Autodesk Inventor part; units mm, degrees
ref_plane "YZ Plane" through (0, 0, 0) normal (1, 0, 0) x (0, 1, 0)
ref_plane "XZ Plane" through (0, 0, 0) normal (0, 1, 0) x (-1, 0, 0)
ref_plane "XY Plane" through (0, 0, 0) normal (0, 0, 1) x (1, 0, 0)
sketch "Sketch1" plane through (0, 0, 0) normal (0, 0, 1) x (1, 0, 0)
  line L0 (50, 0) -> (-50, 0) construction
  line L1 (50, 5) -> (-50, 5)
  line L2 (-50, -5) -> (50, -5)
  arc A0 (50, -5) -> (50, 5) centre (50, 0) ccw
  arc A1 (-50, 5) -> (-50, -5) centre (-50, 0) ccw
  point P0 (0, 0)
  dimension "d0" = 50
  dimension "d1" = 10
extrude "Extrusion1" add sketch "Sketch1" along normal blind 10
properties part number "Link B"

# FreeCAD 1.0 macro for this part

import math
import FreeCAD as App
import Part
import Sketcher

V = App.Vector
Q = App.Units.Quantity

doc = App.newDocument("Part")
body = doc.addObject("PartDesign::Body", "Body")

# Sketch on XY plane
sketch1 = doc.addObject("Sketcher::SketchObject", "Sketch")
body.addObject(sketch1)
sketch1.AttachmentSupport = (doc.XY_Plane, [""])
sketch1.MapMode = "FlatFace"
sketch1.addGeometry(Part.ArcOfCircle(Part.Circle(V(50, 0, 0), V(0, 0, 1), 5), math.radians(-90), math.radians(90)), False)
sketch1.addGeometry(Part.LineSegment(V(50, 5, 0), V(-50, 5, 0)), False)
sketch1.addGeometry(Part.ArcOfCircle(Part.Circle(V(-50, 0, 0), V(0, 0, 1), 5), math.radians(90), math.radians(270)), False)
sketch1.addGeometry(Part.LineSegment(V(-50, -5, 0), V(50, -5, 0)), False)
sketch1.addConstraint(Sketcher.Constraint("Tangent", 0, 2, 1, 1))
sketch1.addConstraint(Sketcher.Constraint("Tangent", 1, 2, 2, 1))
sketch1.addConstraint(Sketcher.Constraint("Tangent", 2, 2, 3, 1))
sketch1.addConstraint(Sketcher.Constraint("Tangent", 3, 2, 0, 1))
sketch1.addConstraint(Sketcher.Constraint("Horizontal", 1))
sketch1.addConstraint(Sketcher.Constraint("Horizontal", 3))
sketch1.addConstraint(Sketcher.Constraint("Symmetric", 0, 3, 2, 3, -1, 1))
sketch1.addConstraint(Sketcher.Constraint("Radius", 0, 5.0))
sketch1.addConstraint(Sketcher.Constraint("DistanceX", -1, 1, 0, 3, Q("1.9685 in")))
pad1 = doc.addObject("PartDesign::Pad", "Pad")
body.addObject(pad1)
pad1.Profile = sketch1
pad1.Length = Q("0.3937008 in")

doc.recompute()
